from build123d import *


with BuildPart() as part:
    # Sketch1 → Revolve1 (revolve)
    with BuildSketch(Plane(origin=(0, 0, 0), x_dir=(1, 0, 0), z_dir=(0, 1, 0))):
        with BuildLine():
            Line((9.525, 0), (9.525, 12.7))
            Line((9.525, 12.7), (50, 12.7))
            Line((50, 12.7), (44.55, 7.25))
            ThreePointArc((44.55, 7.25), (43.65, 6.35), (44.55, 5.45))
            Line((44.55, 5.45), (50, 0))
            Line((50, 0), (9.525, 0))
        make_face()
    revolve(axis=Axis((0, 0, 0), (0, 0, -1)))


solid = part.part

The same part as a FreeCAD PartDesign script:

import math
import FreeCAD as App
import Part
import Sketcher
from FreeCAD import Vector

doc = App.newDocument("Part")
body = doc.addObject("PartDesign::Body", "Body")

# Sketch on XZ plane
sketch1 = doc.addObject("Sketcher::SketchObject", "Sketch")
body.addObject(sketch1)
sketch1.AttachmentSupport = (doc.XZ_Plane, [""])
sketch1.MapMode = "FlatFace"
sketch1.addGeometry([
    Part.LineSegment(Vector(9.525, -12.7, 0), Vector(9.525, 0, 0)),  # 0
    Part.LineSegment(Vector(9.525, 0, 0), Vector(50, 0, 0)),  # 1
    Part.LineSegment(Vector(50, 0, 0), Vector(44.55, -5.45, 0)),  # 2
    Part.ArcOfCircle(Part.Circle(Vector(44.55, -6.35, 0), Vector(0, 0, 1), 0.9), math.radians(90), math.radians(270)),  # 3
    Part.LineSegment(Vector(44.55, -7.25, 0), Vector(50, -12.7, 0)),  # 4
    Part.LineSegment(Vector(50, -12.7, 0), Vector(9.525, -12.7, 0)),  # 5
], False)
sketch1.addConstraint([
    Sketcher.Constraint("Coincident", 0, 2, 1, 1),
    Sketcher.Constraint("Coincident", 1, 2, 2, 1),
    Sketcher.Constraint("Coincident", 2, 2, 3, 1),
    Sketcher.Constraint("Coincident", 3, 2, 4, 1),
    Sketcher.Constraint("Coincident", 4, 2, 5, 1),
    Sketcher.Constraint("Coincident", 5, 2, 0, 1),
    Sketcher.Constraint("Vertical", 0),
    Sketcher.Constraint("Horizontal", 1),
    Sketcher.Constraint("Horizontal", 5),
    Sketcher.Constraint("PointOnObject", 0, 2, -1),
    Sketcher.Constraint("Perpendicular", 2, 4),
    Sketcher.Constraint("Vertical", 3, 3, 2, 2),
    Sketcher.Constraint("Vertical", 2, 2, 3, 2),
    Sketcher.Constraint("Vertical", 1, 2, 4, 2),
    Sketcher.Constraint("Equal", 2, 4),
    Sketcher.Constraint("Radius", 3, 0.9),
    Sketcher.Constraint("DistanceY", 0, 1, 0, 2, 12.7),
    Sketcher.Constraint("DistanceX", -1, 1, 1, 2, 50.0),
    Sketcher.Constraint("DistanceX", 1, 1, 1, 2, 40.475),
])
revolution = doc.addObject("PartDesign::Revolution", "Revolution")
body.addObject(revolution)
revolution.Profile = sketch1
revolution.ReferenceAxis = (sketch1, ["V_Axis"])
revolution.Angle = 360

doc.recompute()
